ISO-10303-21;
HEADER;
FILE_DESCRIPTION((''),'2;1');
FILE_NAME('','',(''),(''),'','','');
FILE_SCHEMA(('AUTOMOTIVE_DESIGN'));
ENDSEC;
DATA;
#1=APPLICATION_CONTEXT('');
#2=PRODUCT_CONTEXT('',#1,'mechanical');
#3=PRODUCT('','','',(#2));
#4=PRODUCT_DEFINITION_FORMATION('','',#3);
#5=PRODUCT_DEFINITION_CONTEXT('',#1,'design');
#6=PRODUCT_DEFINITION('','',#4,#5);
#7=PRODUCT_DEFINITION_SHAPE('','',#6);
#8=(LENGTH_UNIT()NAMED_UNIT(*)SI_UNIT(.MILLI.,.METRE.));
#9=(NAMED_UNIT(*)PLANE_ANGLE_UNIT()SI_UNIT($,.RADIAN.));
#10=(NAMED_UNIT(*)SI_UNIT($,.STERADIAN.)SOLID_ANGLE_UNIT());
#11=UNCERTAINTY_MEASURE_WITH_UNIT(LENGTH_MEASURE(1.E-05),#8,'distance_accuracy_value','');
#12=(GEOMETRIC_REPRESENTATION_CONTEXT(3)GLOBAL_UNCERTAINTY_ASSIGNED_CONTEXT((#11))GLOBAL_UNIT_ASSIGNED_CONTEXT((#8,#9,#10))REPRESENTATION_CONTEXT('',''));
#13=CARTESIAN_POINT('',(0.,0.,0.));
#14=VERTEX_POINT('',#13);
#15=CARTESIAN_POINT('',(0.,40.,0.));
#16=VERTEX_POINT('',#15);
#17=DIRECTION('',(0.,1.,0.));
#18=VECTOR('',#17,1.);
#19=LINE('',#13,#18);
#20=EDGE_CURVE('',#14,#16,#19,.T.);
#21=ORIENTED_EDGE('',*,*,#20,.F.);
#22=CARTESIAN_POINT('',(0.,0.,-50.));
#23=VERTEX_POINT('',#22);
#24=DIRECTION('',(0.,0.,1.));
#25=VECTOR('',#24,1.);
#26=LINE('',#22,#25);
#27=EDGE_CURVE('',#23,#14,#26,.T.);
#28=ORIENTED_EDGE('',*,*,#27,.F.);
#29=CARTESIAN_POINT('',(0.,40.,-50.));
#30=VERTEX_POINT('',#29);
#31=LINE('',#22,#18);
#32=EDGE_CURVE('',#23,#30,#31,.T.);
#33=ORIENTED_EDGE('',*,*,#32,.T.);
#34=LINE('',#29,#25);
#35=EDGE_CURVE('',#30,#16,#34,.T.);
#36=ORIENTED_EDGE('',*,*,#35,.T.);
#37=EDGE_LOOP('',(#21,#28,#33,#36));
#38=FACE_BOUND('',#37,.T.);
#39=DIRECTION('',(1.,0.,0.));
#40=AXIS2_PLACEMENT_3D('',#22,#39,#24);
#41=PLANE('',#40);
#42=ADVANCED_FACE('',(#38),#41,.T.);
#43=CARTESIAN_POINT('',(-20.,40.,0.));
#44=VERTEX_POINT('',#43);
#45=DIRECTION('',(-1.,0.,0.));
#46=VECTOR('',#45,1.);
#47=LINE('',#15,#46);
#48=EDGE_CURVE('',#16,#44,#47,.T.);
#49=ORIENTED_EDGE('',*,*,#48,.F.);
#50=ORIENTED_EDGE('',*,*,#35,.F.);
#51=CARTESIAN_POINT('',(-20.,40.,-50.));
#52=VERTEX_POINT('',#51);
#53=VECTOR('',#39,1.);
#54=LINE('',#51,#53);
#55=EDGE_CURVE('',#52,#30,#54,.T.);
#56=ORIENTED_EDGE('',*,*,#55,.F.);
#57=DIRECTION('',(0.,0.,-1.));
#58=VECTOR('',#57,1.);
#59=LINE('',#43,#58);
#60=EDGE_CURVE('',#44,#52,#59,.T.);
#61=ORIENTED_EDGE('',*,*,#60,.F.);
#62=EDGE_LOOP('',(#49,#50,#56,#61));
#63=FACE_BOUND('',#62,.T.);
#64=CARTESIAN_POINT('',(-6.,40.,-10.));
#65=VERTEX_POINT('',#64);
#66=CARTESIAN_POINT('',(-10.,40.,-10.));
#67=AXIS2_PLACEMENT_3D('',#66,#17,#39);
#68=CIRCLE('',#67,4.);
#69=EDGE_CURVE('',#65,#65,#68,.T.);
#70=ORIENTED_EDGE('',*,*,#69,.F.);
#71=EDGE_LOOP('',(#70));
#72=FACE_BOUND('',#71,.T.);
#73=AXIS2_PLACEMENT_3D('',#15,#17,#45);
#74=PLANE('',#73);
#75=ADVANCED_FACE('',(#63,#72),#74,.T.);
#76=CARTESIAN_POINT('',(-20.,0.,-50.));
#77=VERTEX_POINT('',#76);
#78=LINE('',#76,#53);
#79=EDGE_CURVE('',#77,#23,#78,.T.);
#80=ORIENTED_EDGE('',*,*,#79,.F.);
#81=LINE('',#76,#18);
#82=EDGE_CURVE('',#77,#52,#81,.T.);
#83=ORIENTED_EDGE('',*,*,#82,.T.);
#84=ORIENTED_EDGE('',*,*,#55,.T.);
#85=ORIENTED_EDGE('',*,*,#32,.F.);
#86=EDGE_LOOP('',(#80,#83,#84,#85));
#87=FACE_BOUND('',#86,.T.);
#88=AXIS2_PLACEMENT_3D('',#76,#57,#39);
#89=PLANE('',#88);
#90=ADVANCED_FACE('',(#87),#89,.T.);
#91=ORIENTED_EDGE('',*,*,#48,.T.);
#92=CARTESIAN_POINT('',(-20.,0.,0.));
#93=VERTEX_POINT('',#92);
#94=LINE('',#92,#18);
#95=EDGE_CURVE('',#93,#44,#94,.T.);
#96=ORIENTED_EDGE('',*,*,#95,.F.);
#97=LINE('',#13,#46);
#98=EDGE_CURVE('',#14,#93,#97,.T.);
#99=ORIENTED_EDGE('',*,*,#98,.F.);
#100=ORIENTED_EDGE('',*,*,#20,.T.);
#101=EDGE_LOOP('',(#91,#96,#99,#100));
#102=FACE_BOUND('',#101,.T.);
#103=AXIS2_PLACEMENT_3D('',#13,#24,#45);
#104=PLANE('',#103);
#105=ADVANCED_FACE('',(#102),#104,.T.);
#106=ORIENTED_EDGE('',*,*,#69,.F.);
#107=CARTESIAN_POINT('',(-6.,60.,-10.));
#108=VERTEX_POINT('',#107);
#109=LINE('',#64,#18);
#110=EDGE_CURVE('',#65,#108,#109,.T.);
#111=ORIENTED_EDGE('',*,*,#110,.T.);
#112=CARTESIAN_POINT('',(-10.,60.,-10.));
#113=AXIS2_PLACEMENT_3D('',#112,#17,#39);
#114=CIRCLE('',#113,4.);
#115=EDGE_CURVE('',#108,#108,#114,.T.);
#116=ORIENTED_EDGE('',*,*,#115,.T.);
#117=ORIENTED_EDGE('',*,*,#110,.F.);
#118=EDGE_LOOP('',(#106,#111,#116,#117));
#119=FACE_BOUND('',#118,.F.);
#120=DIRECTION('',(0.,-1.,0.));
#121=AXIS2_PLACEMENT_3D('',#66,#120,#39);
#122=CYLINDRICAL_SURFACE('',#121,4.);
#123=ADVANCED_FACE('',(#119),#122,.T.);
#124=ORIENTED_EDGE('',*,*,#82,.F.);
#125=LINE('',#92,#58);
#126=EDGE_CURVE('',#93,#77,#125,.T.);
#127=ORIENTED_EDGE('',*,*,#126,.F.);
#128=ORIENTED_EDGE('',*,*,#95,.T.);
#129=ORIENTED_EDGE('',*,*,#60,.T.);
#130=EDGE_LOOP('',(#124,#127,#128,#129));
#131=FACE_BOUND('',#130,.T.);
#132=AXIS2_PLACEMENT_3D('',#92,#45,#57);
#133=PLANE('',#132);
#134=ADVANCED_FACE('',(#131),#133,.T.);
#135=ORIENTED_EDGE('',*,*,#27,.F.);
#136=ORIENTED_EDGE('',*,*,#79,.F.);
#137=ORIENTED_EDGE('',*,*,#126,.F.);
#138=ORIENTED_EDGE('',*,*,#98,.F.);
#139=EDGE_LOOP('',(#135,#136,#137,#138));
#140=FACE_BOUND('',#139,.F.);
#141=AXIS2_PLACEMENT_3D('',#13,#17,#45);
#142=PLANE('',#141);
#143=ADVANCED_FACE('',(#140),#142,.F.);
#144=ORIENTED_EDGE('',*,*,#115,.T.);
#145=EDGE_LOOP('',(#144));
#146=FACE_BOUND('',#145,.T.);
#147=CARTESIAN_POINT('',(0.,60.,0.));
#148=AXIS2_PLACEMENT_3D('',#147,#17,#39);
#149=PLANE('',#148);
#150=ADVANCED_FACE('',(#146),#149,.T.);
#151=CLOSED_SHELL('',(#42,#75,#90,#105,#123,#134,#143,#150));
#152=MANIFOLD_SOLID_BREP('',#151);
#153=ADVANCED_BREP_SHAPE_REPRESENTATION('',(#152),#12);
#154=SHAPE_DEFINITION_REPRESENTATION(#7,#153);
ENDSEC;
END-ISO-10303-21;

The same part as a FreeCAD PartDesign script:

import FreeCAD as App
import Part
import Sketcher
from FreeCAD import Vector

doc = App.newDocument("Part")
body = doc.addObject("PartDesign::Body", "Body")

# Sketch on XZ plane
sketch1 = doc.addObject("Sketcher::SketchObject", "Sketch")
body.addObject(sketch1)
sketch1.AttachmentSupport = (doc.XZ_Plane, [""])
sketch1.MapMode = "FlatFace"
sketch1.addGeometry([
    Part.LineSegment(Vector(-20, 0, 0), Vector(0, 0, 0)),
    Part.LineSegment(Vector(0, 0, 0), Vector(0, -50, 0)),
    Part.LineSegment(Vector(0, -50, 0), Vector(-20, -50, 0)),
    Part.LineSegment(Vector(-20, -50, 0), Vector(-20, 0, 0)),
], False)
sketch1.addConstraint([
    Sketcher.Constraint("Coincident", 0, 2, 1, 1),
    Sketcher.Constraint("Coincident", 1, 2, 2, 1),
    Sketcher.Constraint("Coincident", 2, 2, 3, 1),
    Sketcher.Constraint("Coincident", 3, 2, 0, 1),
    Sketcher.Constraint("Horizontal", 0),
    Sketcher.Constraint("Vertical", 1),
    Sketcher.Constraint("Horizontal", 2),
    Sketcher.Constraint("Vertical", 3),
    Sketcher.Constraint("Coincident", 0, 2, -1, 1),
    Sketcher.Constraint("DistanceX", 0, 1, 0, 2, 20.0),
    Sketcher.Constraint("DistanceY", 1, 2, 1, 1, 50.0),
])
pad1 = doc.addObject("PartDesign::Pad", "Pad")
body.addObject(pad1)
pad1.Profile = sketch1
pad1.Length = 40
pad1.Reversed = True

# Sketch on XZ plane
sketch2 = doc.addObject("Sketcher::SketchObject", "Sketch001")
body.addObject(sketch2)
sketch2.AttachmentSupport = (doc.XZ_Plane, [""])
sketch2.MapMode = "FlatFace"
sketch2.AttachmentOffset = App.Placement(Vector(0, 0, -40), App.Rotation())
sketch2.addGeometry(Part.Circle(Vector(-10, -10, 0), Vector(0, 0, 1), 4), False)
sketch2.addConstraint([
    Sketcher.Constraint("Diameter", 0, 8.0),
    Sketcher.Constraint("DistanceX", 0, 3, -1, 1, 10.0),
    Sketcher.Constraint("DistanceY", 0, 3, -1, 1, 10.0),
])
pad2 = doc.addObject("PartDesign::Pad", "Pad001")
body.addObject(pad2)
pad2.Profile = sketch2
pad2.Length = 20
pad2.Reversed = True

doc.recompute()
